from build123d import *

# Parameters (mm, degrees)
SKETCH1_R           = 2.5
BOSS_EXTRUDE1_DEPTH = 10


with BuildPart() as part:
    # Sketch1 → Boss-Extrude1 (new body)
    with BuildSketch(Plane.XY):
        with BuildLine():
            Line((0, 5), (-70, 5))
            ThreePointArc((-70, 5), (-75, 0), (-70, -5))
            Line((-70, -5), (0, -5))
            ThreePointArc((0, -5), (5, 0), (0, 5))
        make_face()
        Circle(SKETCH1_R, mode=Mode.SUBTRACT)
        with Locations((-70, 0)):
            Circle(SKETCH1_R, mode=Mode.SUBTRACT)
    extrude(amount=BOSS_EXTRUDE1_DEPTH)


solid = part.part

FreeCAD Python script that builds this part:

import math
import FreeCAD as App
import Part
import Sketcher
Q = App.Units.Quantity

doc = App.newDocument("Part")
body = doc.addObject("PartDesign::Body", "Body")

sketch1 = body.newObject("Sketcher::SketchObject", "Sketch")
sketch1.AttachmentSupport = (doc.getObject("XY_Plane"), [""])
sketch1.MapMode = "FlatFace"
sketch1.addGeometry([
    Part.LineSegment(App.Vector(0, 5, 0), App.Vector(-70, 5, 0)),
    Part.ArcOfCircle(Part.Circle(App.Vector(-70, 0, 0), App.Vector(0, 0, 1), 5), math.radians(90), math.radians(270)),
    Part.LineSegment(App.Vector(-70, -5, 0), App.Vector(0, -5, 0)),
    Part.ArcOfCircle(Part.Circle(App.Vector(0, 0, 0), App.Vector(0, 0, 1), 5), math.radians(-90), math.radians(90)),
    Part.Circle(App.Vector(-70, 0, 0), App.Vector(0, 0, 1), 2.5),
    Part.Circle(App.Vector(0, 0, 0), App.Vector(0, 0, 1), 2.5),
], False)
sketch1.addConstraint([
    Sketcher.Constraint("Tangent", 0, 2, 1, 1),
    Sketcher.Constraint("Tangent", 1, 2, 2, 1),
    Sketcher.Constraint("Tangent", 2, 2, 3, 1),
    Sketcher.Constraint("Tangent", 3, 2, 0, 1),
    Sketcher.Constraint("Horizontal", 0),
    Sketcher.Constraint("Horizontal", 2),
    Sketcher.Constraint("Coincident", 3, 3, -1, 1),
    Sketcher.Constraint("Coincident", 5, 3, -1, 1),
    Sketcher.Constraint("Coincident", 4, 3, 1, 3),
    Sketcher.Constraint("Equal", 4, 5),
    Sketcher.Constraint("Diameter", 4, Q("5 mm")),
    Sketcher.Constraint("Radius", 1, Q("5 mm")),
    Sketcher.Constraint("DistanceX", 0, 2, 0, 1, Q("70 mm")),
])
pad1 = body.newObject("PartDesign::Pad", "Pad")
pad1.Profile = sketch1
pad1.Length = 10

doc.recompute()
